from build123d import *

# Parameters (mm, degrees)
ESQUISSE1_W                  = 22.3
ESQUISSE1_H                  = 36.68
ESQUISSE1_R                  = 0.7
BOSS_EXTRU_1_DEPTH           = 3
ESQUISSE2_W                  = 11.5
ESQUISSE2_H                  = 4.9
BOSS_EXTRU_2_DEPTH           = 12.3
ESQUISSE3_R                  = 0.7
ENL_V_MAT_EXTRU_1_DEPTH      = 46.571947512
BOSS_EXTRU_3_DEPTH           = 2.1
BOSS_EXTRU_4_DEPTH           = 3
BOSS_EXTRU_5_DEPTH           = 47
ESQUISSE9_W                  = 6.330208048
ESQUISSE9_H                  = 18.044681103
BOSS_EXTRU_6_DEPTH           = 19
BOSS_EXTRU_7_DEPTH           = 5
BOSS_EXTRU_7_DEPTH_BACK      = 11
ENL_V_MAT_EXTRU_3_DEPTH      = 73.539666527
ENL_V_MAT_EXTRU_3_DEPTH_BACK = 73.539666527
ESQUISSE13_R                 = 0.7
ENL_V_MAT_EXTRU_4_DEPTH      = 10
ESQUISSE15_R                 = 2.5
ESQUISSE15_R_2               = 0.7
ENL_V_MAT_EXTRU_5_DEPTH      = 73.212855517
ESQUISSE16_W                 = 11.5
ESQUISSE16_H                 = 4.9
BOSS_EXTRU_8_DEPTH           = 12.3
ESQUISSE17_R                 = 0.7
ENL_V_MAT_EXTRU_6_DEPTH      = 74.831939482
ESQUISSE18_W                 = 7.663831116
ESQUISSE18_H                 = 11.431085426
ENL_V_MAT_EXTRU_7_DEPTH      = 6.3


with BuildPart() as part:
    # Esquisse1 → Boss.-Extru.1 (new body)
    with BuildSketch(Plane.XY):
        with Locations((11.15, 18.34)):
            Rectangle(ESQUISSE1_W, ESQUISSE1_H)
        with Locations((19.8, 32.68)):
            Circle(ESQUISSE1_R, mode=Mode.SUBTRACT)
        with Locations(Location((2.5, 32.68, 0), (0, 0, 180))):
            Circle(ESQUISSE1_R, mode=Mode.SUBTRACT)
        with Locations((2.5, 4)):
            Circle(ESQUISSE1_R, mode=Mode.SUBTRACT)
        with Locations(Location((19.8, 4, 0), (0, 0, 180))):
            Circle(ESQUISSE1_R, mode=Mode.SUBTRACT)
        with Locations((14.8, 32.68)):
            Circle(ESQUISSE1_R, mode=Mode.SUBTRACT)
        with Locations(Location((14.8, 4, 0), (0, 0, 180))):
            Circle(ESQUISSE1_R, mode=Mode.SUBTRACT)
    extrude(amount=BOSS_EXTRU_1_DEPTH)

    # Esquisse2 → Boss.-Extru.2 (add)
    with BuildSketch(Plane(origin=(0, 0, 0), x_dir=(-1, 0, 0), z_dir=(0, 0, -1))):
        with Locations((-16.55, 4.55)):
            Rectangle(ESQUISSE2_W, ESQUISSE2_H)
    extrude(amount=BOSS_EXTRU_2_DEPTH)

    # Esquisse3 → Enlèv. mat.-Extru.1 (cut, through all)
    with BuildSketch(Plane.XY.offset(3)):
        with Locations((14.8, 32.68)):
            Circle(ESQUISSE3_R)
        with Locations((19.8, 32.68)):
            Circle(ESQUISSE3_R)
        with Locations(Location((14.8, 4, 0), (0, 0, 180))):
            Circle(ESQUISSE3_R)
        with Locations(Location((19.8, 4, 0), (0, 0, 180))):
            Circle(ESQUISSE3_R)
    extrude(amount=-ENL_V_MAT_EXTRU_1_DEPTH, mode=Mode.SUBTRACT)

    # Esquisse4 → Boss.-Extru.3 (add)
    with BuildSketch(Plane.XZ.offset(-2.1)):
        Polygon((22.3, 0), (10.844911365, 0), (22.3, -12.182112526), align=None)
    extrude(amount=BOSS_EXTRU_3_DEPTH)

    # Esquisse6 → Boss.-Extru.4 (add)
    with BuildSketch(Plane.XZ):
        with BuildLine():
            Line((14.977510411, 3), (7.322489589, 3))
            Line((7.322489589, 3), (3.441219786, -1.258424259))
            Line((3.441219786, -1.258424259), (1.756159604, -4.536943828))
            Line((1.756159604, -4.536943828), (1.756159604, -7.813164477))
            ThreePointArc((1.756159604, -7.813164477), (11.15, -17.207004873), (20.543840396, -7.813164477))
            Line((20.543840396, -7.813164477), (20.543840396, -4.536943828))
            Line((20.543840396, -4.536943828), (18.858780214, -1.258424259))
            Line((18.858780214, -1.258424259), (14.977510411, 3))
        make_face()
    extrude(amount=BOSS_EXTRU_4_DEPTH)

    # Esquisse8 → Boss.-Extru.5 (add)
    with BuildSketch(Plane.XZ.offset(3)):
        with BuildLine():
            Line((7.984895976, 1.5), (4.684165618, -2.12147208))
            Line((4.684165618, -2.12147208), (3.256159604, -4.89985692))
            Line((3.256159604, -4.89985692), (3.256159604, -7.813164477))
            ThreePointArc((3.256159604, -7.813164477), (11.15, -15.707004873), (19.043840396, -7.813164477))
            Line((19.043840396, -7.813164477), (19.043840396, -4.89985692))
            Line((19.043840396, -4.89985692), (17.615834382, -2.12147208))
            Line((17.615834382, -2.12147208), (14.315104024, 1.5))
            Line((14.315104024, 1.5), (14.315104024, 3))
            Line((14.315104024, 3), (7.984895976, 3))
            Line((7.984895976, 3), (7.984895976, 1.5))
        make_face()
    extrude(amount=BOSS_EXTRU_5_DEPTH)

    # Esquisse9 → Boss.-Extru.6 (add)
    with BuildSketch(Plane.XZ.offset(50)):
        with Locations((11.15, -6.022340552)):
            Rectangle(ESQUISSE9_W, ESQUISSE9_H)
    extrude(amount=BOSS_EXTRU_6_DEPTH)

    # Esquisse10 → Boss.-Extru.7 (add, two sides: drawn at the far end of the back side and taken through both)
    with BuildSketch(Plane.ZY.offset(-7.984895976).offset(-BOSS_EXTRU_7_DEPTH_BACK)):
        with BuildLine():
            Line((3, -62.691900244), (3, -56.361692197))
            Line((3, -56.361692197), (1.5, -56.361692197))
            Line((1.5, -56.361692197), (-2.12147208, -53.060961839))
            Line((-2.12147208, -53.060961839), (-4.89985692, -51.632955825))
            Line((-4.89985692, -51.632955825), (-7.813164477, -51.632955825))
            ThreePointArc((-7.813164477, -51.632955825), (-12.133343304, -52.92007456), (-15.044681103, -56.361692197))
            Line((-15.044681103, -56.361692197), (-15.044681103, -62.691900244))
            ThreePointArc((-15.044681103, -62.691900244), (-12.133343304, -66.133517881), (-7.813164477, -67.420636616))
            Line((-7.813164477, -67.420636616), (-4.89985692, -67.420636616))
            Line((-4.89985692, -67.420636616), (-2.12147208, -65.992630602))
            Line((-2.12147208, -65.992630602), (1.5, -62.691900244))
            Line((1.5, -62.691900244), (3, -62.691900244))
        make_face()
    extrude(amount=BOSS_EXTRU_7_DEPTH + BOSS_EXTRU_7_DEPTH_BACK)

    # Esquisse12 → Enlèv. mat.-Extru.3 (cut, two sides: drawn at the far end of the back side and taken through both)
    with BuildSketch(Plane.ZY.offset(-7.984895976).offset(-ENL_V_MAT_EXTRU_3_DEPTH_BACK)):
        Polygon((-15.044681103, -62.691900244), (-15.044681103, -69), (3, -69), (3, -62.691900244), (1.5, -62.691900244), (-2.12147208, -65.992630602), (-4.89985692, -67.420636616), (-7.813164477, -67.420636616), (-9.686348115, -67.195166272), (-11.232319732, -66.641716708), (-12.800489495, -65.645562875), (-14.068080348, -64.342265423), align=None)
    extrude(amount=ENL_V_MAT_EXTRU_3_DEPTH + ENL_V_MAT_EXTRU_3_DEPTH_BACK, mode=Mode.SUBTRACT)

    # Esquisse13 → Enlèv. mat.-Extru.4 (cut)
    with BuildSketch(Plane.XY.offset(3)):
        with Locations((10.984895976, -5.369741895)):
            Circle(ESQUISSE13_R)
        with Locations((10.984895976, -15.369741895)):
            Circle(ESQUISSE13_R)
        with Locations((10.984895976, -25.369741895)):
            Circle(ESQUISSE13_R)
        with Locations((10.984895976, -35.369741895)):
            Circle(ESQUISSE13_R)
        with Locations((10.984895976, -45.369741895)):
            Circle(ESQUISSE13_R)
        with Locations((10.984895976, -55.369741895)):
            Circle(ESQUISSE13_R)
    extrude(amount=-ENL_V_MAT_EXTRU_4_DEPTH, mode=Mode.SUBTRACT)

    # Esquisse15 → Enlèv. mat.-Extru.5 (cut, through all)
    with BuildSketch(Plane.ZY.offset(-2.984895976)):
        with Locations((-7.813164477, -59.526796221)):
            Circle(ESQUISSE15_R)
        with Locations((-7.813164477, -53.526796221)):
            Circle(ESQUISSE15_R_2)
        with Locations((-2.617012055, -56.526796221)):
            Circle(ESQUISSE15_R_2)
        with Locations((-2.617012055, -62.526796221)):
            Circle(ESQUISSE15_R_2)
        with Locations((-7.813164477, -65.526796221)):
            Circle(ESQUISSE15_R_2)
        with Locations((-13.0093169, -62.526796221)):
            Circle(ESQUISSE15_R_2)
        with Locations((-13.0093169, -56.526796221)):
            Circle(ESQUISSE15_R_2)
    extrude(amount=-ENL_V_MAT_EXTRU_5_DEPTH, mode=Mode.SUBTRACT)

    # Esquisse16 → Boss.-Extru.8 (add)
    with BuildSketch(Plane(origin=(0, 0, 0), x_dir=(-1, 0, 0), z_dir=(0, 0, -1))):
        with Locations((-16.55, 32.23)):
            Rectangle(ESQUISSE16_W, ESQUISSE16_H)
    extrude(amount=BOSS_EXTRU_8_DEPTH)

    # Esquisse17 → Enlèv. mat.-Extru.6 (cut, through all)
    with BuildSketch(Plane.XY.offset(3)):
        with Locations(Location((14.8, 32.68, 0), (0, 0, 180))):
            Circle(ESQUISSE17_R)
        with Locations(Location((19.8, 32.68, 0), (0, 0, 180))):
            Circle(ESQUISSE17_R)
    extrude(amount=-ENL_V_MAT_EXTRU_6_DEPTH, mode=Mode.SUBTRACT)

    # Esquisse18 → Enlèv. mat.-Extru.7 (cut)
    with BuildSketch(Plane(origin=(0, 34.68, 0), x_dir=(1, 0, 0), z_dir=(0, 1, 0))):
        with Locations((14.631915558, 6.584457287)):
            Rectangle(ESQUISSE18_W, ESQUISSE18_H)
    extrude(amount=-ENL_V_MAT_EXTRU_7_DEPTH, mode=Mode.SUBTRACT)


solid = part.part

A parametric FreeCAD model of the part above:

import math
import FreeCAD as App
import Part
import Sketcher
from FreeCAD import Vector
Q = App.Units.Quantity

doc = App.newDocument("Part")
params = doc.addObject("Spreadsheet::Sheet", "Params")
for row, (alias, value) in enumerate([
    ("sketch1_diameter", "1.4 mm"),
    ("sketch1_width", "22.3 mm"),
    ("sketch1_height", "36.68 mm"),
    ("pad1_length", "3 mm"),
    ("sketch2_width", "11.5 mm"),
    ("sketch2_height", "4.9 mm"),
    ("pad2_length", "12.3 mm"),
    ("sketch3_diameter", "1.4 mm"),
    ("pad3_length", "2.1 mm"),
    ("pad4_length", "3 mm"),
    ("sketch6_height", "1.5 mm"),
    ("pad5_length", "47 mm"),
    ("pad6_length", "19 mm"),
    ("sketch8_height", "1.5 mm"),
    ("pad7_length", "5 mm"),
    ("pad7_length2", "11 mm"),
    ("sketch9_height", "1.5 mm"),
    ("sketch10_diameter", "1.4 mm"),
    ("pocket3_length", "10 mm"),
    ("sketch11_diameter", "5 mm"),
    ("sketch11_diameter2", "1.4 mm"),
    ("sketch12_width", "11.5 mm"),
    ("sketch12_height", "4.9 mm"),
    ("pad8_length", "12.3 mm"),
    ("sketch13_diameter", "1.4 mm"),
    ("pocket6_length", "6.3 mm"),
], start=1):
    params.set(f"A{row}", alias)
    params.set(f"B{row}", "=" + value)
    params.setAlias(f"B{row}", alias)

body = doc.addObject("PartDesign::Body", "Body")

# Sketch on XY plane
sketch1 = body.newObject("Sketcher::SketchObject", "Sketch")
sketch1.AttachmentSupport = (doc.getObject("XY_Plane"), [""])
sketch1.MapMode = "FlatFace"
sketch1.addGeometry(Part.LineSegment(Vector(0, 36.68, 0), Vector(0, 0, 0)), False)
sketch1.addGeometry(Part.LineSegment(Vector(0, 0, 0), Vector(22.3, 0, 0)), False)
sketch1.addGeometry(Part.LineSegment(Vector(22.3, 0, 0), Vector(22.3, 36.68, 0)), False)
sketch1.addGeometry(Part.LineSegment(Vector(22.3, 36.68, 0), Vector(0, 36.68, 0)), False)
sketch1.addGeometry(Part.Circle(Vector(2.5, 4, 0), Vector(0, 0, 1), 0.7), False)
sketch1.addGeometry(Part.Circle(Vector(14.8, 4, 0), Vector(0, 0, 1), 0.7), False)
sketch1.addGeometry(Part.Circle(Vector(19.8, 4, 0), Vector(0, 0, 1), 0.7), False)
sketch1.addGeometry(Part.Circle(Vector(2.5, 32.68, 0), Vector(0, 0, 1), 0.7), False)
sketch1.addGeometry(Part.Circle(Vector(14.8, 32.68, 0), Vector(0, 0, 1), 0.7), False)
sketch1.addGeometry(Part.Circle(Vector(19.8, 32.68, 0), Vector(0, 0, 1), 0.7), False)
sketch1.addConstraint(Sketcher.Constraint("Coincident", 0, 2, 1, 1))
sketch1.addConstraint(Sketcher.Constraint("Coincident", 1, 2, 2, 1))
sketch1.addConstraint(Sketcher.Constraint("Coincident", 2, 2, 3, 1))
sketch1.addConstraint(Sketcher.Constraint("Coincident", 3, 2, 0, 1))
sketch1.addConstraint(Sketcher.Constraint("Vertical", 0))
sketch1.addConstraint(Sketcher.Constraint("Horizontal", 1))
sketch1.addConstraint(Sketcher.Constraint("Vertical", 2))
sketch1.addConstraint(Sketcher.Constraint("Horizontal", 3))
sketch1.addConstraint(Sketcher.Constraint("Coincident", 0, 2, -1, 1))
sketch1.addConstraint(Sketcher.Constraint("Equal", 4, 5))
sketch1.addConstraint(Sketcher.Constraint("Equal", 5, 6))
sketch1.addConstraint(Sketcher.Constraint("Equal", 6, 7))
sketch1.addConstraint(Sketcher.Constraint("Equal", 7, 8))
sketch1.addConstraint(Sketcher.Constraint("Equal", 8, 9))
sketch1.addConstraint(Sketcher.Constraint("Horizontal", 4, 3, 5, 3))
sketch1.addConstraint(Sketcher.Constraint("Horizontal", 5, 3, 6, 3))
sketch1.addConstraint(Sketcher.Constraint("Horizontal", 7, 3, 8, 3))
sketch1.addConstraint(Sketcher.Constraint("Horizontal", 8, 3, 9, 3))
sketch1.addConstraint(Sketcher.Constraint("Vertical", 4, 3, 7, 3))
sketch1.addConstraint(Sketcher.Constraint("Vertical", 5, 3, 8, 3))
sketch1.addConstraint(Sketcher.Constraint("Vertical", 6, 3, 9, 3))
sketch1.addConstraint(Sketcher.Constraint("Diameter", 4, Q("1.4 mm")))
sketch1.addConstraint(Sketcher.Constraint("DistanceX", 1, 1, 1, 2, Q("22.3 mm")))
sketch1.addConstraint(Sketcher.Constraint("DistanceY", -1, 1, 4, 3, Q("4 mm")))
sketch1.addConstraint(Sketcher.Constraint("DistanceX", 5, 3, 6, 3, Q("5 mm")))
sketch1.addConstraint(Sketcher.Constraint("DistanceY", 9, 3, 2, 2, Q("4 mm")))
sketch1.addConstraint(Sketcher.Constraint("DistanceY", 0, 2, 0, 1, Q("36.68 mm")))
sketch1.addConstraint(Sketcher.Constraint("DistanceX", -1, 1, 4, 3, Q("2.5 mm")))
sketch1.addConstraint(Sketcher.Constraint("DistanceX", -1, 1, 5, 3, Q("14.8 mm")))
sketch1.setExpression("Constraints[21]", "Params.sketch1_diameter")
sketch1.setExpression("Constraints[22]", "Params.sketch1_width")
sketch1.setExpression("Constraints[26]", "Params.sketch1_height")
pad1 = body.newObject("PartDesign::Pad", "Pad")
pad1.Profile = sketch1
pad1.setExpression("Length", "Params.pad1_length")

# Sketch on XY plane
sketch2 = body.newObject("Sketcher::SketchObject", "Sketch001")
sketch2.AttachmentSupport = (doc.getObject("XY_Plane"), [""])
sketch2.MapMode = "FlatFace"
sketch2.addGeometry(Part.LineSegment(Vector(22.3, 7, 0), Vector(22.3, 2.1, 0)), False)
sketch2.addGeometry(Part.LineSegment(Vector(22.3, 2.1, 0), Vector(10.8, 2.1, 0)), False)
sketch2.addGeometry(Part.LineSegment(Vector(10.8, 2.1, 0), Vector(10.8, 7, 0)), False)
sketch2.addGeometry(Part.LineSegment(Vector(10.8, 7, 0), Vector(22.3, 7, 0)), False)
sketch2.addConstraint(Sketcher.Constraint("Coincident", 0, 2, 1, 1))
sketch2.addConstraint(Sketcher.Constraint("Coincident", 1, 2, 2, 1))
sketch2.addConstraint(Sketcher.Constraint("Coincident", 2, 2, 3, 1))
sketch2.addConstraint(Sketcher.Constraint("Coincident", 3, 2, 0, 1))
sketch2.addConstraint(Sketcher.Constraint("Vertical", 0))
sketch2.addConstraint(Sketcher.Constraint("Horizontal", 1))
sketch2.addConstraint(Sketcher.Constraint("Vertical", 2))
sketch2.addConstraint(Sketcher.Constraint("Horizontal", 3))
sketch2.addConstraint(Sketcher.Constraint("DistanceX", 1, 2, 1, 1, Q("11.5 mm")))
sketch2.addConstraint(Sketcher.Constraint("DistanceY", 0, 2, 0, 1, Q("4.9 mm")))
sketch2.addConstraint(Sketcher.Constraint("DistanceY", -1, 1, 2, 2, Q("7 mm")))
sketch2.addConstraint(Sketcher.Constraint("DistanceX", -1, 1, 0, 2, Q("22.3 mm")))
sketch2.setExpression("Constraints[8]", "Params.sketch2_width")
sketch2.setExpression("Constraints[9]", "Params.sketch2_height")
pad2 = body.newObject("PartDesign::Pad", "Pad001")
pad2.Profile = sketch2
pad2.setExpression("Length", "Params.pad2_length")
pad2.Reversed = True

# Sketch on XY plane
sketch3 = body.newObject("Sketcher::SketchObject", "Sketch002")
sketch3.AttachmentSupport = (doc.getObject("XY_Plane"), [""])
sketch3.MapMode = "FlatFace"
sketch3.AttachmentOffset = App.Placement(Vector(0, 0, 3), App.Rotation())
sketch3.addGeometry(Part.Circle(Vector(14.8, 32.68, 0), Vector(0, 0, 1), 0.7), False)
sketch3.addGeometry(Part.Circle(Vector(19.8, 32.68, 0), Vector(0, 0, 1), 0.7), False)
sketch3.addGeometry(Part.Circle(Vector(14.8, 4, 0), Vector(0, 0, 1), 0.7), False)
sketch3.addGeometry(Part.Circle(Vector(19.8, 4, 0), Vector(0, 0, 1), 0.7), False)
sketch3.addConstraint(Sketcher.Constraint("Equal", 0, 1))
sketch3.addConstraint(Sketcher.Constraint("Equal", 1, 2))
sketch3.addConstraint(Sketcher.Constraint("Equal", 2, 3))
sketch3.addConstraint(Sketcher.Constraint("Horizontal", 0, 3, 1, 3))
sketch3.addConstraint(Sketcher.Constraint("Horizontal", 2, 3, 3, 3))
sketch3.addConstraint(Sketcher.Constraint("Vertical", 0, 3, 2, 3))
sketch3.addConstraint(Sketcher.Constraint("Vertical", 1, 3, 3, 3))
sketch3.addConstraint(Sketcher.Constraint("Diameter", 0, Q("1.4 mm")))
sketch3.addConstraint(Sketcher.Constraint("DistanceY", -1, 1, 2, 3, Q("4 mm")))
sketch3.addConstraint(Sketcher.Constraint("DistanceX", 0, 3, 1, 3, Q("5 mm")))
sketch3.addConstraint(Sketcher.Constraint("DistanceX", -1, 1, 0, 3, Q("14.8 mm")))
sketch3.addConstraint(Sketcher.Constraint("DistanceY", -1, 1, 0, 3, Q("32.68 mm")))
sketch3.setExpression("Constraints[7]", "Params.sketch3_diameter")
pocket1 = body.newObject("PartDesign::Pocket", "Pocket")
pocket1.Profile = sketch3
pocket1.Type = "ThroughAll"

# Sketch on XZ plane
sketch4 = body.newObject("Sketcher::SketchObject", "Sketch003")
sketch4.AttachmentSupport = (doc.getObject("XZ_Plane"), [""])
sketch4.MapMode = "FlatFace"
sketch4.AttachmentOffset = App.Placement(Vector(0, 0, -2.1), App.Rotation())
sketch4.addGeometry(Part.LineSegment(Vector(22.3, 0, 0), Vector(10.844911, 0, 0)), False)
sketch4.addGeometry(Part.LineSegment(Vector(10.844911, 0, 0), Vector(22.3, -12.182113, 0)), False)
sketch4.addGeometry(Part.LineSegment(Vector(22.3, -12.182113, 0), Vector(22.3, 0, 0)), False)
sketch4.addConstraint(Sketcher.Constraint("Coincident", 0, 2, 1, 1))
sketch4.addConstraint(Sketcher.Constraint("Coincident", 1, 2, 2, 1))
sketch4.addConstraint(Sketcher.Constraint("Coincident", 2, 2, 0, 1))
sketch4.addConstraint(Sketcher.Constraint("Horizontal", 0))
sketch4.addConstraint(Sketcher.Constraint("Vertical", 2))
sketch4.addConstraint(Sketcher.Constraint("PointOnObject", 0, 2, -1))
sketch4.addConstraint(Sketcher.Constraint("DistanceX", -1, 1, 1, 2, Q("22.3 mm")))
sketch4.addConstraint(Sketcher.Constraint("DistanceX", 0, 2, 0, 1, Q("11.455089 mm")))
sketch4.addConstraint(Sketcher.Constraint("Distance", 1, Q("16.721929 mm")))
pad3 = body.newObject("PartDesign::Pad", "Pad002")
pad3.Profile = sketch4
pad3.setExpression("Length", "Params.pad3_length")

# Sketch on XZ plane
sketch5 = body.newObject("Sketcher::SketchObject", "Sketch004")
sketch5.AttachmentSupport = (doc.getObject("XZ_Plane"), [""])
sketch5.MapMode = "FlatFace"
sketch5.addGeometry(Part.LineSegment(Vector(14.97751, 3, 0), Vector(7.32249, 3, 0)), False)
sketch5.addGeometry(Part.LineSegment(Vector(7.32249, 3, 0), Vector(3.44122, -1.258424, 0)), False)
sketch5.addGeometry(Part.LineSegment(Vector(3.44122, -1.258424, 0), Vector(1.75616, -4.536944, 0)), False)
sketch5.addGeometry(Part.LineSegment(Vector(1.75616, -4.536944, 0), Vector(1.75616, -7.813164, 0)), False)
sketch5.addGeometry(Part.ArcOfCircle(Part.Circle(Vector(11.15, -7.813164, 0), Vector(0, 0, 1), 9.39384), math.radians(180), math.radians(360)), False)
sketch5.addGeometry(Part.LineSegment(Vector(20.54384, -7.813164, 0), Vector(20.54384, -4.536944, 0)), False)
sketch5.addGeometry(Part.LineSegment(Vector(20.54384, -4.536944, 0), Vector(18.85878, -1.258424, 0)), False)
sketch5.addGeometry(Part.LineSegment(Vector(18.85878, -1.258424, 0), Vector(14.97751, 3, 0)), False)
sketch5.addConstraint(Sketcher.Constraint("Coincident", 0, 2, 1, 1))
sketch5.addConstraint(Sketcher.Constraint("Coincident", 1, 2, 2, 1))
sketch5.addConstraint(Sketcher.Constraint("Coincident", 2, 2, 3, 1))
sketch5.addConstraint(Sketcher.Constraint("Tangent", 3, 2, 4, 1))
sketch5.addConstraint(Sketcher.Constraint("Tangent", 4, 2, 5, 1))
sketch5.addConstraint(Sketcher.Constraint("Coincident", 5, 2, 6, 1))
sketch5.addConstraint(Sketcher.Constraint("Coincident", 6, 2, 7, 1))
sketch5.addConstraint(Sketcher.Constraint("Coincident", 7, 2, 0, 1))
sketch5.addConstraint(Sketcher.Constraint("Horizontal", 0))
sketch5.addConstraint(Sketcher.Constraint("Vertical", 3))
sketch5.addConstraint(Sketcher.Constraint("Vertical", 5))
sketch5.addConstraint(Sketcher.Constraint("Horizontal", 2, 2, 5, 2))
sketch5.addConstraint(Sketcher.Constraint("Horizontal", 1, 2, 6, 2))
sketch5.addConstraint(Sketcher.Constraint("Equal", 2, 6))
sketch5.addConstraint(Sketcher.Constraint("Equal", 1, 7))
sketch5.addConstraint(Sketcher.Constraint("DistanceY", -1, 1, 0, 2, Q("3 mm")))
sketch5.addConstraint(Sketcher.Constraint("DistanceX", -1, 1, 4, 3, Q("11.15 mm")))
sketch5.addConstraint(Sketcher.Constraint("Radius", 4, Q("9.39384 mm")))
sketch5.addConstraint(Sketcher.Constraint("DistanceX", 0, 2, 0, 1, Q("7.655021 mm")))
sketch5.addConstraint(Sketcher.Constraint("DistanceY", 3, 2, 3, 1, Q("3.276221 mm")))
sketch5.addConstraint(Sketcher.Constraint("Distance", 1, Q("5.761808 mm")))
sketch5.addConstraint(Sketcher.Constraint("DistanceX", -1, 1, 1, 2, Q("3.44122 mm")))
sketch5.addConstraint(Sketcher.Constraint("DistanceY", 4, 3, 1, 2, Q("6.55474 mm")))
pad4 = body.newObject("PartDesign::Pad", "Pad003")
pad4.Profile = sketch5
pad4.setExpression("Length", "Params.pad4_length")

# Sketch on XZ plane
sketch6 = body.newObject("Sketcher::SketchObject", "Sketch005")
sketch6.AttachmentSupport = (doc.getObject("XZ_Plane"), [""])
sketch6.MapMode = "FlatFace"
sketch6.AttachmentOffset = App.Placement(Vector(0, 0, 3), App.Rotation())
sketch6.addGeometry(Part.LineSegment(Vector(7.984896, 1.5, 0), Vector(4.684166, -2.121472, 0)), False)
sketch6.addGeometry(Part.LineSegment(Vector(4.684166, -2.121472, 0), Vector(3.25616, -4.899857, 0)), False)
sketch6.addGeometry(Part.LineSegment(Vector(3.25616, -4.899857, 0), Vector(3.25616, -7.813164, 0)), False)
sketch6.addGeometry(Part.ArcOfCircle(Part.Circle(Vector(11.15, -7.813164, 0), Vector(0, 0, 1), 7.89384), math.radians(180), math.radians(360)), False)
sketch6.addGeometry(Part.LineSegment(Vector(19.04384, -7.813164, 0), Vector(19.04384, -4.899857, 0)), False)
sketch6.addGeometry(Part.LineSegment(Vector(19.04384, -4.899857, 0), Vector(17.615834, -2.121472, 0)), False)
sketch6.addGeometry(Part.LineSegment(Vector(17.615834, -2.121472, 0), Vector(14.315104, 1.5, 0)), False)
sketch6.addGeometry(Part.LineSegment(Vector(14.315104, 1.5, 0), Vector(14.315104, 3, 0)), False)
sketch6.addGeometry(Part.LineSegment(Vector(14.315104, 3, 0), Vector(7.984896, 3, 0)), False)
sketch6.addGeometry(Part.LineSegment(Vector(7.984896, 3, 0), Vector(7.984896, 1.5, 0)), False)
sketch6.addConstraint(Sketcher.Constraint("Coincident", 0, 2, 1, 1))
sketch6.addConstraint(Sketcher.Constraint("Coincident", 1, 2, 2, 1))
sketch6.addConstraint(Sketcher.Constraint("Tangent", 2, 2, 3, 1))
sketch6.addConstraint(Sketcher.Constraint("Tangent", 3, 2, 4, 1))
sketch6.addConstraint(Sketcher.Constraint("Coincident", 4, 2, 5, 1))
sketch6.addConstraint(Sketcher.Constraint("Coincident", 5, 2, 6, 1))
sketch6.addConstraint(Sketcher.Constraint("Coincident", 6, 2, 7, 1))
sketch6.addConstraint(Sketcher.Constraint("Coincident", 7, 2, 8, 1))
sketch6.addConstraint(Sketcher.Constraint("Coincident", 8, 2, 9, 1))
sketch6.addConstraint(Sketcher.Constraint("Coincident", 9, 2, 0, 1))
sketch6.addConstraint(Sketcher.Constraint("Vertical", 2))
sketch6.addConstraint(Sketcher.Constraint("Vertical", 4))
sketch6.addConstraint(Sketcher.Constraint("Vertical", 7))
sketch6.addConstraint(Sketcher.Constraint("Horizontal", 8))
sketch6.addConstraint(Sketcher.Constraint("Vertical", 9))
sketch6.addConstraint(Sketcher.Constraint("Horizontal", 1, 2, 4, 2))
sketch6.addConstraint(Sketcher.Constraint("Horizontal", 0, 2, 5, 2))
sketch6.addConstraint(Sketcher.Constraint("Horizontal", 6, 2, 9, 2))
sketch6.addConstraint(Sketcher.Constraint("Equal", 1, 5))
sketch6.addConstraint(Sketcher.Constraint("Equal", 0, 6))
sketch6.addConstraint(Sketcher.Constraint("DistanceY", 7, 1, 7, 2, Q("1.5 mm")))
sketch6.addConstraint(Sketcher.Constraint("DistanceY", -1, 1, 7, 2, Q("3 mm")))
sketch6.addConstraint(Sketcher.Constraint("DistanceX", -1, 1, 3, 3, Q("11.15 mm")))
sketch6.addConstraint(Sketcher.Constraint("Radius", 3, Q("7.89384 mm")))
sketch6.addConstraint(Sketcher.Constraint("DistanceX", 8, 2, 8, 1, Q("6.330208 mm")))
sketch6.addConstraint(Sketcher.Constraint("Distance", 1, Q("3.12388 mm")))
sketch6.addConstraint(Sketcher.Constraint("DistanceY", 2, 2, 2, 1, Q("2.913308 mm")))
sketch6.addConstraint(Sketcher.Constraint("DistanceX", 0, 2, 5, 2, Q("12.931669 mm")))
sketch6.addConstraint(Sketcher.Constraint("Distance", 0, Q("4.899988 mm")))
sketch6.setExpression("Constraints[20]", "Params.sketch6_height")
pad5 = body.newObject("PartDesign::Pad", "Pad004")
pad5.Profile = sketch6
pad5.setExpression("Length", "Params.pad5_length")

# Sketch on XZ plane
sketch7 = body.newObject("Sketcher::SketchObject", "Sketch006")
sketch7.AttachmentSupport = (doc.getObject("XZ_Plane"), [""])
sketch7.MapMode = "FlatFace"
sketch7.AttachmentOffset = App.Placement(Vector(0, 0, 50), App.Rotation())
sketch7.addGeometry(Part.LineSegment(Vector(7.984896, 3, 0), Vector(7.984896, -15.044681, 0)), False)
sketch7.addGeometry(Part.LineSegment(Vector(7.984896, -15.044681, 0), Vector(14.315104, -15.044681, 0)), False)
sketch7.addGeometry(Part.LineSegment(Vector(14.315104, -15.044681, 0), Vector(14.315104, 3, 0)), False)
sketch7.addGeometry(Part.LineSegment(Vector(14.315104, 3, 0), Vector(7.984896, 3, 0)), False)
sketch7.addConstraint(Sketcher.Constraint("Coincident", 0, 2, 1, 1))
sketch7.addConstraint(Sketcher.Constraint("Coincident", 1, 2, 2, 1))
sketch7.addConstraint(Sketcher.Constraint("Coincident", 2, 2, 3, 1))
sketch7.addConstraint(Sketcher.Constraint("Coincident", 3, 2, 0, 1))
sketch7.addConstraint(Sketcher.Constraint("Vertical", 0))
sketch7.addConstraint(Sketcher.Constraint("Horizontal", 1))
sketch7.addConstraint(Sketcher.Constraint("Vertical", 2))
sketch7.addConstraint(Sketcher.Constraint("Horizontal", 3))
sketch7.addConstraint(Sketcher.Constraint("DistanceY", -1, 1, 2, 2, Q("3 mm")))
sketch7.addConstraint(Sketcher.Constraint("DistanceX", 1, 1, 1, 2, Q("6.330208 mm")))
sketch7.addConstraint(Sketcher.Constraint("DistanceY", 0, 2, 0, 1, Q("18.044681 mm")))
sketch7.addConstraint(Sketcher.Constraint("DistanceX", -1, 1, 0, 2, Q("7.984896 mm")))
pad6 = body.newObject("PartDesign::Pad", "Pad005")
pad6.Profile = sketch7
pad6.setExpression("Length", "Params.pad6_length")

# Sketch on YZ plane
sketch8 = body.newObject("Sketcher::SketchObject", "Sketch007")
sketch8.AttachmentSupport = (doc.getObject("YZ_Plane"), [""])
sketch8.MapMode = "FlatFace"
sketch8.AttachmentOffset = App.Placement(Vector(0, 0, 7.984896), App.Rotation())
sketch8.addGeometry(Part.LineSegment(Vector(-62.6919, 3, 0), Vector(-56.361692, 3, 0)), False)
sketch8.addGeometry(Part.LineSegment(Vector(-56.361692, 3, 0), Vector(-56.361692, 1.5, 0)), False)
sketch8.addGeometry(Part.LineSegment(Vector(-56.361692, 1.5, 0), Vector(-53.060962, -2.121472, 0)), False)
sketch8.addGeometry(Part.LineSegment(Vector(-53.060962, -2.121472, 0), Vector(-51.632956, -4.899857, 0)), False)
sketch8.addGeometry(Part.LineSegment(Vector(-51.632956, -4.899857, 0), Vector(-51.632956, -7.813164, 0)), False)
sketch8.addGeometry(Part.ArcOfCircle(Part.Circle(Vector(-59.526796, -7.813164, 0), Vector(0, 0, 1), 7.89384), math.radians(-66.361875), math.radians(0)), False)
sketch8.addGeometry(Part.LineSegment(Vector(-56.361692, -15.044681, 0), Vector(-62.6919, -15.044681, 0)), False)
sketch8.addGeometry(Part.ArcOfCircle(Part.Circle(Vector(-59.526796, -7.813164, 0), Vector(0, 0, 1), 7.89384), math.radians(180), math.radians(246.361875)), False)
sketch8.addGeometry(Part.LineSegment(Vector(-67.420637, -7.813164, 0), Vector(-67.420637, -4.899857, 0)), False)
sketch8.addGeometry(Part.LineSegment(Vector(-67.420637, -4.899857, 0), Vector(-65.992631, -2.121472, 0)), False)
sketch8.addGeometry(Part.LineSegment(Vector(-65.992631, -2.121472, 0), Vector(-62.6919, 1.5, 0)), False)
sketch8.addGeometry(Part.LineSegment(Vector(-62.6919, 1.5, 0), Vector(-62.6919, 3, 0)), False)
sketch8.addConstraint(Sketcher.Constraint("Coincident", 0, 2, 1, 1))
sketch8.addConstraint(Sketcher.Constraint("Coincident", 1, 2, 2, 1))
sketch8.addConstraint(Sketcher.Constraint("Coincident", 2, 2, 3, 1))
sketch8.addConstraint(Sketcher.Constraint("Coincident", 3, 2, 4, 1))
sketch8.addConstraint(Sketcher.Constraint("Tangent", 4, 2, 5, 2))
sketch8.addConstraint(Sketcher.Constraint("Coincident", 5, 1, 6, 1))
sketch8.addConstraint(Sketcher.Constraint("Coincident", 6, 2, 7, 2))
sketch8.addConstraint(Sketcher.Constraint("Tangent", 7, 1, 8, 1))
sketch8.addConstraint(Sketcher.Constraint("Coincident", 8, 2, 9, 1))
sketch8.addConstraint(Sketcher.Constraint("Coincident", 9, 2, 10, 1))
sketch8.addConstraint(Sketcher.Constraint("Coincident", 10, 2, 11, 1))
sketch8.addConstraint(Sketcher.Constraint("Coincident", 11, 2, 0, 1))
sketch8.addConstraint(Sketcher.Constraint("Horizontal", 0))
sketch8.addConstraint(Sketcher.Constraint("Vertical", 1))
sketch8.addConstraint(Sketcher.Constraint("Vertical", 4))
sketch8.addConstraint(Sketcher.Constraint("Horizontal", 6))
sketch8.addConstraint(Sketcher.Constraint("Vertical", 8))
sketch8.addConstraint(Sketcher.Constraint("Vertical", 11))
sketch8.addConstraint(Sketcher.Constraint("Coincident", 7, 3, 5, 3))
sketch8.addConstraint(Sketcher.Constraint("Equal", 5, 7))
sketch8.addConstraint(Sketcher.Constraint("Horizontal", 3, 2, 8, 2))
sketch8.addConstraint(Sketcher.Constraint("Horizontal", 2, 2, 9, 2))
sketch8.addConstraint(Sketcher.Constraint("Horizontal", 1, 2, 10, 2))
sketch8.addConstraint(Sketcher.Constraint("Vertical", 1, 2, 5, 1))
sketch8.addConstraint(Sketcher.Constraint("Vertical", 6, 2, 10, 2))
sketch8.addConstraint(Sketcher.Constraint("Equal", 3, 9))
sketch8.addConstraint(Sketcher.Constraint("DistanceY", 1, 2, 1, 1, Q("1.5 mm")))
sketch8.addConstraint(Sketcher.Constraint("DistanceY", -1, 1, 0, 2, Q("3 mm")))
sketch8.addConstraint(Sketcher.Constraint("Radius", 5, Q("7.89384 mm")))
sketch8.addConstraint(Sketcher.Constraint("DistanceX", 0, 1, 0, 2, Q("6.330208 mm")))
sketch8.addConstraint(Sketcher.Constraint("DistanceX", 6, 2, -1, 1, Q("62.6919 mm")))
sketch8.addConstraint(Sketcher.Constraint("Distance", 3, Q("3.12388 mm")))
sketch8.addConstraint(Sketcher.Constraint("DistanceY", 4, 2, 4, 1, Q("2.913308 mm")))
sketch8.addConstraint(Sketcher.Constraint("DistanceX", 2, 2, -1, 1, Q("53.060962 mm")))
sketch8.addConstraint(Sketcher.Constraint("DistanceY", 5, 1, -1, 1, Q("15.044681 mm")))
sketch8.setExpression("Constraints[26]", "Params.sketch8_height")
pad7 = body.newObject("PartDesign::Pad", "Pad006")
pad7.Profile = sketch8
pad7.Type = "TwoLengths"
pad7.setExpression("Length", "Params.pad7_length")
pad7.setExpression("Length2", "Params.pad7_length2")
pad7.Reversed = True

# Sketch on YZ plane
sketch9 = body.newObject("Sketcher::SketchObject", "Sketch008")
sketch9.AttachmentSupport = (doc.getObject("YZ_Plane"), [""])
sketch9.MapMode = "FlatFace"
sketch9.AttachmentOffset = App.Placement(Vector(0, 0, 7.984896), App.Rotation())
sketch9.addGeometry(Part.LineSegment(Vector(-62.6919, -15.044681, 0), Vector(-69, -15.044681, 0)), False)
sketch9.addGeometry(Part.LineSegment(Vector(-69, -15.044681, 0), Vector(-69, 3, 0)), False)
sketch9.addGeometry(Part.LineSegment(Vector(-69, 3, 0), Vector(-62.6919, 3, 0)), False)
sketch9.addGeometry(Part.LineSegment(Vector(-62.6919, 3, 0), Vector(-62.6919, 1.5, 0)), False)
sketch9.addGeometry(Part.LineSegment(Vector(-62.6919, 1.5, 0), Vector(-65.992631, -2.121472, 0)), False)
sketch9.addGeometry(Part.LineSegment(Vector(-65.992631, -2.121472, 0), Vector(-67.420637, -4.899857, 0)), False)
sketch9.addGeometry(Part.LineSegment(Vector(-67.420637, -4.899857, 0), Vector(-67.420637, -7.813164, 0)), False)
sketch9.addGeometry(Part.LineSegment(Vector(-67.420637, -7.813164, 0), Vector(-67.195166, -9.686348, 0)), False)
sketch9.addGeometry(Part.LineSegment(Vector(-67.195166, -9.686348, 0), Vector(-66.641717, -11.23232, 0)), False)
sketch9.addGeometry(Part.LineSegment(Vector(-66.641717, -11.23232, 0), Vector(-65.645563, -12.800489, 0)), False)
sketch9.addGeometry(Part.LineSegment(Vector(-65.645563, -12.800489, 0), Vector(-64.342265, -14.06808, 0)), False)
sketch9.addGeometry(Part.LineSegment(Vector(-64.342265, -14.06808, 0), Vector(-62.6919, -15.044681, 0)), False)
sketch9.addConstraint(Sketcher.Constraint("Coincident", 0, 2, 1, 1))
sketch9.addConstraint(Sketcher.Constraint("Coincident", 1, 2, 2, 1))
sketch9.addConstraint(Sketcher.Constraint("Coincident", 2, 2, 3, 1))
sketch9.addConstraint(Sketcher.Constraint("Coincident", 3, 2, 4, 1))
sketch9.addConstraint(Sketcher.Constraint("Coincident", 4, 2, 5, 1))
sketch9.addConstraint(Sketcher.Constraint("Coincident", 5, 2, 6, 1))
sketch9.addConstraint(Sketcher.Constraint("Coincident", 6, 2, 7, 1))
sketch9.addConstraint(Sketcher.Constraint("Coincident", 7, 2, 8, 1))
sketch9.addConstraint(Sketcher.Constraint("Coincident", 8, 2, 9, 1))
sketch9.addConstraint(Sketcher.Constraint("Coincident", 9, 2, 10, 1))
sketch9.addConstraint(Sketcher.Constraint("Coincident", 10, 2, 11, 1))
sketch9.addConstraint(Sketcher.Constraint("Coincident", 11, 2, 0, 1))
sketch9.addConstraint(Sketcher.Constraint("Horizontal", 0))
sketch9.addConstraint(Sketcher.Constraint("Vertical", 1))
sketch9.addConstraint(Sketcher.Constraint("Horizontal", 2))
sketch9.addConstraint(Sketcher.Constraint("Vertical", 3))
sketch9.addConstraint(Sketcher.Constraint("Vertical", 6))
sketch9.addConstraint(Sketcher.Constraint("Vertical", 3, 2, 11, 2))
sketch9.addConstraint(Sketcher.Constraint("DistanceY", 3, 2, 3, 1, Q("1.5 mm")))
sketch9.addConstraint(Sketcher.Constraint("DistanceX", 0, 2, -1, 1, Q("69 mm")))
sketch9.addConstraint(Sketcher.Constraint("DistanceY", -1, 1, 1, 2, Q("3 mm")))
sketch9.addConstraint(Sketcher.Constraint("DistanceX", 0, 2, 0, 1, Q("6.3081 mm")))
sketch9.addConstraint(Sketcher.Constraint("DistanceY", 1, 1, 1, 2, Q("18.044681 mm")))
sketch9.addConstraint(Sketcher.Constraint("DistanceY", 0, 2, 10, 2, Q("0.976601 mm")))
sketch9.addConstraint(Sketcher.Constraint("DistanceX", 7, 2, 10, 2, Q("2.852901 mm")))
sketch9.addConstraint(Sketcher.Constraint("Distance", 5, Q("3.12388 mm")))
sketch9.addConstraint(Sketcher.Constraint("Distance", 8, Q("1.642052 mm")))
sketch9.addConstraint(Sketcher.Constraint("Distance", 11, Q("1.917669 mm")))
sketch9.addConstraint(Sketcher.Constraint("DistanceY", 6, 2, 6, 1, Q("2.913308 mm")))
sketch9.addConstraint(Sketcher.Constraint("DistanceX", 4, 2, -1, 1, Q("65.992631 mm")))
sketch9.addConstraint(Sketcher.Constraint("DistanceY", 7, 2, -1, 1, Q("9.686348 mm")))
sketch9.addConstraint(Sketcher.Constraint("DistanceY", 8, 2, -1, 1, Q("11.23232 mm")))
sketch9.addConstraint(Sketcher.Constraint("DistanceY", 9, 2, -1, 1, Q("12.800489 mm")))
sketch9.addConstraint(Sketcher.Constraint("DistanceY", 0, 2, 4, 2, Q("12.923209 mm")))
sketch9.addConstraint(Sketcher.Constraint("DistanceX", 6, 2, 7, 2, Q("0.22547 mm")))
sketch9.addConstraint(Sketcher.Constraint("Distance", 9, Q("1.857816 mm")))
sketch9.setExpression("Constraints[18]", "Params.sketch9_height")
pocket2 = body.newObject("PartDesign::Pocket", "Pocket001")
pocket2.Profile = sketch9
pocket2.Type = "ThroughAll"
pocket2.Midplane = True

# Sketch on XY plane
sketch10 = body.newObject("Sketcher::SketchObject", "Sketch009")
sketch10.AttachmentSupport = (doc.getObject("XY_Plane"), [""])
sketch10.MapMode = "FlatFace"
sketch10.AttachmentOffset = App.Placement(Vector(0, 0, 3), App.Rotation())
sketch10.addGeometry(Part.Circle(Vector(10.984896, -5.369742, 0), Vector(0, 0, 1), 0.7), False)
sketch10.addGeometry(Part.Circle(Vector(10.984896, -15.369742, 0), Vector(0, 0, 1), 0.7), False)
sketch10.addGeometry(Part.Circle(Vector(10.984896, -25.369742, 0), Vector(0, 0, 1), 0.7), False)
sketch10.addGeometry(Part.Circle(Vector(10.984896, -35.369742, 0), Vector(0, 0, 1), 0.7), False)
sketch10.addGeometry(Part.Circle(Vector(10.984896, -45.369742, 0), Vector(0, 0, 1), 0.7), False)
sketch10.addGeometry(Part.Circle(Vector(10.984896, -55.369742, 0), Vector(0, 0, 1), 0.7), False)
sketch10.addConstraint(Sketcher.Constraint("Equal", 0, 1))
sketch10.addConstraint(Sketcher.Constraint("Equal", 1, 2))
sketch10.addConstraint(Sketcher.Constraint("Equal", 2, 3))
sketch10.addConstraint(Sketcher.Constraint("Equal", 3, 4))
sketch10.addConstraint(Sketcher.Constraint("Equal", 4, 5))
sketch10.addConstraint(Sketcher.Constraint("Vertical", 0, 3, 1, 3))
sketch10.addConstraint(Sketcher.Constraint("Vertical", 1, 3, 2, 3))
sketch10.addConstraint(Sketcher.Constraint("Vertical", 2, 3, 3, 3))
sketch10.addConstraint(Sketcher.Constraint("Vertical", 3, 3, 4, 3))
sketch10.addConstraint(Sketcher.Constraint("Vertical", 4, 3, 5, 3))
sketch10.addConstraint(Sketcher.Constraint("Diameter", 0, Q("1.4 mm")))
sketch10.addConstraint(Sketcher.Constraint("DistanceY", 1, 3, 0, 3, Q("10 mm")))
sketch10.addConstraint(Sketcher.Constraint("DistanceY", 2, 3, 1, 3, Q("10 mm")))
sketch10.addConstraint(Sketcher.Constraint("DistanceY", 3, 3, 2, 3, Q("10 mm")))
sketch10.addConstraint(Sketcher.Constraint("DistanceY", 4, 3, 3, 3, Q("10 mm")))
sketch10.addConstraint(Sketcher.Constraint("DistanceY", 5, 3, 4, 3, Q("10 mm")))
sketch10.addConstraint(Sketcher.Constraint("DistanceY", 0, 3, -1, 1, Q("5.369742 mm")))
sketch10.addConstraint(Sketcher.Constraint("DistanceX", -1, 1, 0, 3, Q("10.984896 mm")))
sketch10.setExpression("Constraints[10]", "Params.sketch10_diameter")
pocket3 = body.newObject("PartDesign::Pocket", "Pocket002")
pocket3.Profile = sketch10
pocket3.setExpression("Length", "Params.pocket3_length")

# Sketch on YZ plane
sketch11 = body.newObject("Sketcher::SketchObject", "Sketch010")
sketch11.AttachmentSupport = (doc.getObject("YZ_Plane"), [""])
sketch11.MapMode = "FlatFace"
sketch11.AttachmentOffset = App.Placement(Vector(0, 0, 2.984896), App.Rotation())
sketch11.addGeometry(Part.Circle(Vector(-59.526796, -7.813164, 0), Vector(0, 0, 1), 2.5), False)
sketch11.addGeometry(Part.Circle(Vector(-53.526796, -7.813164, 0), Vector(0, 0, 1), 0.7), False)
sketch11.addGeometry(Part.Circle(Vector(-56.526796, -2.617012, 0), Vector(0, 0, 1), 0.7), False)
sketch11.addGeometry(Part.Circle(Vector(-62.526796, -2.617012, 0), Vector(0, 0, 1), 0.7), False)
sketch11.addGeometry(Part.Circle(Vector(-65.526796, -7.813164, 0), Vector(0, 0, 1), 0.7), False)
sketch11.addGeometry(Part.Circle(Vector(-62.526796, -13.009317, 0), Vector(0, 0, 1), 0.7), False)
sketch11.addGeometry(Part.Circle(Vector(-56.526796, -13.009317, 0), Vector(0, 0, 1), 0.7), False)
sketch11.addConstraint(Sketcher.Constraint("Equal", 1, 2))
sketch11.addConstraint(Sketcher.Constraint("Equal", 2, 3))
sketch11.addConstraint(Sketcher.Constraint("Equal", 3, 4))
sketch11.addConstraint(Sketcher.Constraint("Equal", 4, 5))
sketch11.addConstraint(Sketcher.Constraint("Equal", 5, 6))
sketch11.addConstraint(Sketcher.Constraint("Horizontal", 0, 3, 1, 3))
sketch11.addConstraint(Sketcher.Constraint("Horizontal", 2, 3, 3, 3))
sketch11.addConstraint(Sketcher.Constraint("Horizontal", 1, 3, 4, 3))
sketch11.addConstraint(Sketcher.Constraint("Horizontal", 5, 3, 6, 3))
sketch11.addConstraint(Sketcher.Constraint("Vertical", 3, 3, 5, 3))
sketch11.addConstraint(Sketcher.Constraint("Vertical", 2, 3, 6, 3))
sketch11.addConstraint(Sketcher.Constraint("Diameter", 0, Q("5 mm")))
sketch11.addConstraint(Sketcher.Constraint("Diameter", 1, Q("1.4 mm")))
sketch11.addConstraint(Sketcher.Constraint("DistanceX", 0, 3, 1, 3, Q("6 mm")))
sketch11.addConstraint(Sketcher.Constraint("DistanceX", 0, 3, 2, 3, Q("3 mm")))
sketch11.addConstraint(Sketcher.Constraint("DistanceX", 3, 3, 0, 3, Q("3 mm")))
sketch11.addConstraint(Sketcher.Constraint("DistanceX", 4, 3, 3, 3, Q("3 mm")))
sketch11.addConstraint(Sketcher.Constraint("DistanceX", 0, 3, -1, 1, Q("59.526796 mm")))
sketch11.addConstraint(Sketcher.Constraint("DistanceY", 0, 3, -1, 1, Q("7.813164 mm")))
sketch11.addConstraint(Sketcher.Constraint("DistanceY", 2, 3, -1, 1, Q("2.617012 mm")))
sketch11.addConstraint(Sketcher.Constraint("DistanceY", 5, 3, -1, 1, Q("13.009317 mm")))
sketch11.setExpression("Constraints[11]", "Params.sketch11_diameter")
sketch11.setExpression("Constraints[12]", "Params.sketch11_diameter2")
pocket4 = body.newObject("PartDesign::Pocket", "Pocket003")
pocket4.Profile = sketch11
pocket4.Type = "ThroughAll"
pocket4.Reversed = True

# Sketch on XY plane
sketch12 = body.newObject("Sketcher::SketchObject", "Sketch011")
sketch12.AttachmentSupport = (doc.getObject("XY_Plane"), [""])
sketch12.MapMode = "FlatFace"
sketch12.addGeometry(Part.LineSegment(Vector(22.3, 34.68, 0), Vector(22.3, 29.78, 0)), False)
sketch12.addGeometry(Part.LineSegment(Vector(22.3, 29.78, 0), Vector(10.8, 29.78, 0)), False)
sketch12.addGeometry(Part.LineSegment(Vector(10.8, 29.78, 0), Vector(10.8, 34.68, 0)), False)
sketch12.addGeometry(Part.LineSegment(Vector(10.8, 34.68, 0), Vector(22.3, 34.68, 0)), False)
sketch12.addConstraint(Sketcher.Constraint("Coincident", 0, 2, 1, 1))
sketch12.addConstraint(Sketcher.Constraint("Coincident", 1, 2, 2, 1))
sketch12.addConstraint(Sketcher.Constraint("Coincident", 2, 2, 3, 1))
sketch12.addConstraint(Sketcher.Constraint("Coincident", 3, 2, 0, 1))
sketch12.addConstraint(Sketcher.Constraint("Vertical", 0))
sketch12.addConstraint(Sketcher.Constraint("Horizontal", 1))
sketch12.addConstraint(Sketcher.Constraint("Vertical", 2))
sketch12.addConstraint(Sketcher.Constraint("Horizontal", 3))
sketch12.addConstraint(Sketcher.Constraint("DistanceX", 1, 2, 1, 1, Q("11.5 mm")))
sketch12.addConstraint(Sketcher.Constraint("DistanceY", 0, 2, 0, 1, Q("4.9 mm")))
sketch12.addConstraint(Sketcher.Constraint("DistanceX", -1, 1, 0, 2, Q("22.3 mm")))
sketch12.addConstraint(Sketcher.Constraint("DistanceY", -1, 1, 0, 2, Q("29.78 mm")))
sketch12.setExpression("Constraints[8]", "Params.sketch12_width")
sketch12.setExpression("Constraints[9]", "Params.sketch12_height")
pad8 = body.newObject("PartDesign::Pad", "Pad007")
pad8.Profile = sketch12
pad8.setExpression("Length", "Params.pad8_length")
pad8.Reversed = True

# Sketch on XY plane
sketch13 = body.newObject("Sketcher::SketchObject", "Sketch012")
sketch13.AttachmentSupport = (doc.getObject("XY_Plane"), [""])
sketch13.MapMode = "FlatFace"
sketch13.AttachmentOffset = App.Placement(Vector(0, 0, 3), App.Rotation())
sketch13.addGeometry(Part.Circle(Vector(14.8, 32.68, 0), Vector(0, 0, 1), 0.7), False)
sketch13.addGeometry(Part.Circle(Vector(19.8, 32.68, 0), Vector(0, 0, 1), 0.7), False)
sketch13.addConstraint(Sketcher.Constraint("Equal", 0, 1))
sketch13.addConstraint(Sketcher.Constraint("Horizontal", 0, 3, 1, 3))
sketch13.addConstraint(Sketcher.Constraint("Diameter", 0, Q("1.4 mm")))
sketch13.addConstraint(Sketcher.Constraint("DistanceX", 0, 3, 1, 3, Q("5 mm")))
sketch13.addConstraint(Sketcher.Constraint("DistanceX", -1, 1, 0, 3, Q("14.8 mm")))
sketch13.addConstraint(Sketcher.Constraint("DistanceY", -1, 1, 0, 3, Q("32.68 mm")))
sketch13.setExpression("Constraints[2]", "Params.sketch13_diameter")
pocket5 = body.newObject("PartDesign::Pocket", "Pocket004")
pocket5.Profile = sketch13
pocket5.Type = "ThroughAll"

# Sketch on XZ plane
sketch14 = body.newObject("Sketcher::SketchObject", "Sketch013")
sketch14.AttachmentSupport = (doc.getObject("XZ_Plane"), [""])
sketch14.MapMode = "FlatFace"
sketch14.AttachmentOffset = App.Placement(Vector(0, 0, -34.68), App.Rotation())
sketch14.addGeometry(Part.LineSegment(Vector(10.8, -12.3, 0), Vector(10.8, -0.868915, 0)), False)
sketch14.addGeometry(Part.LineSegment(Vector(10.8, -0.868915, 0), Vector(18.463831, -0.868915, 0)), False)
sketch14.addGeometry(Part.LineSegment(Vector(18.463831, -0.868915, 0), Vector(18.463831, -12.3, 0)), False)
sketch14.addGeometry(Part.LineSegment(Vector(18.463831, -12.3, 0), Vector(10.8, -12.3, 0)), False)
sketch14.addConstraint(Sketcher.Constraint("Coincident", 0, 2, 1, 1))
sketch14.addConstraint(Sketcher.Constraint("Coincident", 1, 2, 2, 1))
sketch14.addConstraint(Sketcher.Constraint("Coincident", 2, 2, 3, 1))
sketch14.addConstraint(Sketcher.Constraint("Coincident", 3, 2, 0, 1))
sketch14.addConstraint(Sketcher.Constraint("Vertical", 0))
sketch14.addConstraint(Sketcher.Constraint("Horizontal", 1))
sketch14.addConstraint(Sketcher.Constraint("Vertical", 2))
sketch14.addConstraint(Sketcher.Constraint("Horizontal", 3))
sketch14.addConstraint(Sketcher.Constraint("DistanceX", -1, 1, 0, 2, Q("10.8 mm")))
sketch14.addConstraint(Sketcher.Constraint("DistanceY", 2, 2, -1, 1, Q("12.3 mm")))
sketch14.addConstraint(Sketcher.Constraint("DistanceX", 1, 1, 1, 2, Q("7.663831 mm")))
sketch14.addConstraint(Sketcher.Constraint("DistanceY", 0, 1, 0, 2, Q("11.431085 mm")))
pocket6 = body.newObject("PartDesign::Pocket", "Pocket005")
pocket6.Profile = sketch14
pocket6.setExpression("Length", "Params.pocket6_length")
pocket6.Reversed = True

doc.recompute()
